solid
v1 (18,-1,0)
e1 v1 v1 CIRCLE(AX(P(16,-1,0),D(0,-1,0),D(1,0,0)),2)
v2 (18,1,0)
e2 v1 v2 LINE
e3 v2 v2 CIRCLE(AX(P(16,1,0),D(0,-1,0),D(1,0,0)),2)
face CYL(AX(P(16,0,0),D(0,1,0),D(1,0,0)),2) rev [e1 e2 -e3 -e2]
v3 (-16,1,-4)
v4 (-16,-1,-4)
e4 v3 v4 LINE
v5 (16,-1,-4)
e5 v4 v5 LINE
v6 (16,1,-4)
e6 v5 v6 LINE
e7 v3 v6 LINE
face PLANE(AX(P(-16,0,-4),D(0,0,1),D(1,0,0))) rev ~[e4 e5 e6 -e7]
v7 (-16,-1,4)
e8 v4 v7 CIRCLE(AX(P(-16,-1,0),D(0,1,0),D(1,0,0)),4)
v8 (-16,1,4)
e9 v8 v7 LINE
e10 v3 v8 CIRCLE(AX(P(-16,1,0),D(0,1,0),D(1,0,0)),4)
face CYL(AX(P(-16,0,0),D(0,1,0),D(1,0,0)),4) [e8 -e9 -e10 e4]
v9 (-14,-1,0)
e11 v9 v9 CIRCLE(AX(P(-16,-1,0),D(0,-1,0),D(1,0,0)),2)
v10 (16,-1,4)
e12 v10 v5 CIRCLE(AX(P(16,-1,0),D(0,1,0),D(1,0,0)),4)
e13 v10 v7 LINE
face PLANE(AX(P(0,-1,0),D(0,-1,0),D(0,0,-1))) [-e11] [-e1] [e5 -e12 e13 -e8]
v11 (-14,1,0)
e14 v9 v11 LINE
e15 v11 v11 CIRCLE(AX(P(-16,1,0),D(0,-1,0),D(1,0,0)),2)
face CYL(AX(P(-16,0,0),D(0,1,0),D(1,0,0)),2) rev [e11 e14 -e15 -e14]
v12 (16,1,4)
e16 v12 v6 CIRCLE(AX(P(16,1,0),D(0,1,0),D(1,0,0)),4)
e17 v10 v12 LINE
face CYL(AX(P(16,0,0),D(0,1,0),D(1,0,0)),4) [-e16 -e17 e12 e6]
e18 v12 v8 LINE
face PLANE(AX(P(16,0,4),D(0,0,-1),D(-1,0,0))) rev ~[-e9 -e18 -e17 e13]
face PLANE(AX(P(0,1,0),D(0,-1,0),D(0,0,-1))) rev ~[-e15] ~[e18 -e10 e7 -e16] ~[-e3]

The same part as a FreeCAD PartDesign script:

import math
import FreeCAD as App
import Part
import Sketcher

V = App.Vector

doc = App.newDocument("Part")
body = doc.addObject("PartDesign::Body", "Body")

# Sketch on XZ plane
sketch1 = doc.addObject("Sketcher::SketchObject", "Sketch")
body.addObject(sketch1)
sketch1.AttachmentSupport = (doc.XZ_Plane, [""])
sketch1.MapMode = "FlatFace"
sketch1.addGeometry([
    Part.ArcOfCircle(Part.Circle(V(16, 0, 0), V(0, 0, 1), 4), math.radians(-90), math.radians(90)),  # 0
    Part.LineSegment(V(16, 4, 0), V(-16, 4, 0)),  # 1
    Part.ArcOfCircle(Part.Circle(V(-16, 0, 0), V(0, 0, 1), 4), math.radians(90), math.radians(270)),  # 2
    Part.LineSegment(V(-16, -4, 0), V(16, -4, 0)),  # 3
    Part.Circle(V(-16, 0, 0), V(0, 0, 1), 2),  # 4
    Part.Circle(V(16, 0, 0), V(0, 0, 1), 2),  # 5
], False)
sketch1.addConstraint([
    Sketcher.Constraint("Tangent", 0, 2, 1, 1),
    Sketcher.Constraint("Tangent", 1, 2, 2, 1),
    Sketcher.Constraint("Tangent", 2, 2, 3, 1),
    Sketcher.Constraint("Tangent", 3, 2, 0, 1),
    Sketcher.Constraint("Horizontal", 1),
    Sketcher.Constraint("Horizontal", 3),
    Sketcher.Constraint("Coincident", 4, 3, 2, 3),
    Sketcher.Constraint("Coincident", 5, 3, 0, 3),
    Sketcher.Constraint("Equal", 4, 5),
    Sketcher.Constraint("Symmetric", 0, 3, 2, 3, -1, 1),
    Sketcher.Constraint("Diameter", 4, 4.0),
    Sketcher.Constraint("Radius", 0, 4.0),
    Sketcher.Constraint("DistanceX", 1, 2, 1, 1, 32.0),
])
pad1 = doc.addObject("PartDesign::Pad", "Pad")
body.addObject(pad1)
pad1.Profile = sketch1
pad1.Length = 2
pad1.Midplane = True

doc.recompute()
